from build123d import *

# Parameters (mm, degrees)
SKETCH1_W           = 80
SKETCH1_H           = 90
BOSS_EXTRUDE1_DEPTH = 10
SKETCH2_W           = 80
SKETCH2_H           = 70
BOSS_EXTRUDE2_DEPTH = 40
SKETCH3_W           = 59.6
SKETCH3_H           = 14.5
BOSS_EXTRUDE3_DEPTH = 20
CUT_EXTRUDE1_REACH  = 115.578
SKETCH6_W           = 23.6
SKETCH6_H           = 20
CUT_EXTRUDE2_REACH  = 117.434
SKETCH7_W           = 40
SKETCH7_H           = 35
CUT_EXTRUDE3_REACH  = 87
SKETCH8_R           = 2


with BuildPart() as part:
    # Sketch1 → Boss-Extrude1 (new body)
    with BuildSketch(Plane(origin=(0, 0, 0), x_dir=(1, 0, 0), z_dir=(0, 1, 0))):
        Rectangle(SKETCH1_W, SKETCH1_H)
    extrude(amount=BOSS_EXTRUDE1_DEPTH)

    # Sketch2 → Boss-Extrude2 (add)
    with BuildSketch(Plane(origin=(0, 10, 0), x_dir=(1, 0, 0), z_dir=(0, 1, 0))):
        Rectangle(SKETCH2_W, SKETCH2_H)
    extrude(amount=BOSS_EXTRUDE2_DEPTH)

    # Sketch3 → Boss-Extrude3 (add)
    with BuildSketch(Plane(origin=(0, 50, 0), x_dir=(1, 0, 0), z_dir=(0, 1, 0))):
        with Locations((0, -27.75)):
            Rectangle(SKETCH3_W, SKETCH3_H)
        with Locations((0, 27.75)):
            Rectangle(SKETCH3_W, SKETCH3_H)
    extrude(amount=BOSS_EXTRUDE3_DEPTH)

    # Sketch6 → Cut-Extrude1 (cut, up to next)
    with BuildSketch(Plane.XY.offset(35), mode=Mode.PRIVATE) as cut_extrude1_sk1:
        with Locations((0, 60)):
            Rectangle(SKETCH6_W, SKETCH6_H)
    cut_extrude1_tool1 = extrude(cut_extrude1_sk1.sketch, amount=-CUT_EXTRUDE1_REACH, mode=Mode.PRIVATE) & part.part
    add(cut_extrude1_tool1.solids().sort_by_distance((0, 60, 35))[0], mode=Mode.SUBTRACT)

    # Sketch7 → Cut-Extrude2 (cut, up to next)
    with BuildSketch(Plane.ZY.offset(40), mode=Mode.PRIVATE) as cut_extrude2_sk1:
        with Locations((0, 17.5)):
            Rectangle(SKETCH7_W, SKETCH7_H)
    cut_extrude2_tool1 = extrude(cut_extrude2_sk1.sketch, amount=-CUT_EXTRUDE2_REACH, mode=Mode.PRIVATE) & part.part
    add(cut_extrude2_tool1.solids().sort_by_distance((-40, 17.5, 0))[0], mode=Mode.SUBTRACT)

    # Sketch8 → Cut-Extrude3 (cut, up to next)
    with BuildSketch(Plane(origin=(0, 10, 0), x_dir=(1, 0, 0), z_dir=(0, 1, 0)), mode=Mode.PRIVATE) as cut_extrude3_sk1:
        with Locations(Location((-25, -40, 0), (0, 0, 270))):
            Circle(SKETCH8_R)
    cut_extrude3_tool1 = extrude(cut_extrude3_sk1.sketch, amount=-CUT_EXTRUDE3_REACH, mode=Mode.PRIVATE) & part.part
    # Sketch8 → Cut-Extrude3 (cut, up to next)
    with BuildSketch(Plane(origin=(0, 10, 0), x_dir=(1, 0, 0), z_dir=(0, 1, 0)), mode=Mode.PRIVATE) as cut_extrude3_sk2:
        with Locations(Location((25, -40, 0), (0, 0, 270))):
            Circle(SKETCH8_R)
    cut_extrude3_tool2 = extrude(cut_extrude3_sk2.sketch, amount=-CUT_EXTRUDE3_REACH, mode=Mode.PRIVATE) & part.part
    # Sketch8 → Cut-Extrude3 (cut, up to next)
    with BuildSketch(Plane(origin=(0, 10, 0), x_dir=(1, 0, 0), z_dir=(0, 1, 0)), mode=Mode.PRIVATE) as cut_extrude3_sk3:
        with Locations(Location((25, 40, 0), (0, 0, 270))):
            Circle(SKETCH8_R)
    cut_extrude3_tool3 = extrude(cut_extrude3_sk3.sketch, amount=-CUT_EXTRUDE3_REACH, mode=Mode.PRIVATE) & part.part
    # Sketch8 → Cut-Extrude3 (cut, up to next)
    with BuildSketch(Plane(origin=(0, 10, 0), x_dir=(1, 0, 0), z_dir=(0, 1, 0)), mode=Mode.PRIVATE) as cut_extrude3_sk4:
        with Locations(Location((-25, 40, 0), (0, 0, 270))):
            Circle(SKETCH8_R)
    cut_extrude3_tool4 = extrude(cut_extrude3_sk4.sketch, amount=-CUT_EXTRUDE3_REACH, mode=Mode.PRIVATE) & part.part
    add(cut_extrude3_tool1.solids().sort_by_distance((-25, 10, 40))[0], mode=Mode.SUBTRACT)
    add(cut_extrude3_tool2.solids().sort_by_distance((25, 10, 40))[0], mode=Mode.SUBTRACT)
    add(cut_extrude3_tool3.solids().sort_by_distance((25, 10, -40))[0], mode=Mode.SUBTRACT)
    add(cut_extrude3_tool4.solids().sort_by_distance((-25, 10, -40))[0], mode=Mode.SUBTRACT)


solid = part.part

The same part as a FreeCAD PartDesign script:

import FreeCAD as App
import Part
import Sketcher
from FreeCAD import Vector

doc = App.newDocument("Part")
body = doc.addObject("PartDesign::Body", "Body")

# Sketch on XZ plane
sketch1 = body.newObject("Sketcher::SketchObject", "Sketch")
sketch1.AttachmentSupport = (doc.getObject("XZ_Plane"), [""])
sketch1.MapMode = "FlatFace"
sketch1.addGeometry([
    Part.LineSegment(Vector(-40, -45, 0), Vector(-40, 45, 0)),
    Part.LineSegment(Vector(-40, 45, 0), Vector(40, 45, 0)),
    Part.LineSegment(Vector(40, 45, 0), Vector(40, -45, 0)),
    Part.LineSegment(Vector(40, -45, 0), Vector(-40, -45, 0)),
], False)
sketch1.addConstraint([
    Sketcher.Constraint("Coincident", 0, 2, 1, 1),
    Sketcher.Constraint("Coincident", 1, 2, 2, 1),
    Sketcher.Constraint("Coincident", 2, 2, 3, 1),
    Sketcher.Constraint("Coincident", 3, 2, 0, 1),
    Sketcher.Constraint("Vertical", 0),
    Sketcher.Constraint("Horizontal", 1),
    Sketcher.Constraint("Vertical", 2),
    Sketcher.Constraint("Horizontal", 3),
    Sketcher.Constraint("Symmetric", 0, 2, 2, 2, -1, 1),
    Sketcher.Constraint("DistanceX", 1, 1, 1, 2, 80.0),
    Sketcher.Constraint("DistanceY", 0, 1, 0, 2, 90.0),
])
pad1 = body.newObject("PartDesign::Pad", "Pad")
pad1.Profile = sketch1
pad1.Length = 10
pad1.Reversed = True

# Sketch on XZ plane
sketch2 = body.newObject("Sketcher::SketchObject", "Sketch001")
sketch2.AttachmentSupport = (doc.getObject("XZ_Plane"), [""])
sketch2.MapMode = "FlatFace"
sketch2.AttachmentOffset = App.Placement(Vector(0, 0, -10), App.Rotation())
sketch2.addGeometry([
    Part.LineSegment(Vector(-40, -35, 0), Vector(-40, 35, 0)),
    Part.LineSegment(Vector(-40, 35, 0), Vector(40, 35, 0)),
    Part.LineSegment(Vector(40, 35, 0), Vector(40, -35, 0)),
    Part.LineSegment(Vector(40, -35, 0), Vector(-40, -35, 0)),
], False)
sketch2.addConstraint([
    Sketcher.Constraint("Coincident", 0, 2, 1, 1),
    Sketcher.Constraint("Coincident", 1, 2, 2, 1),
    Sketcher.Constraint("Coincident", 2, 2, 3, 1),
    Sketcher.Constraint("Coincident", 3, 2, 0, 1),
    Sketcher.Constraint("Vertical", 0),
    Sketcher.Constraint("Horizontal", 1),
    Sketcher.Constraint("Vertical", 2),
    Sketcher.Constraint("Horizontal", 3),
    Sketcher.Constraint("Symmetric", 0, 2, 2, 2, -1, 1),
    Sketcher.Constraint("DistanceX", 1, 1, 1, 2, 80.0),
    Sketcher.Constraint("DistanceY", 0, 1, 0, 2, 70.0),
])
pad2 = body.newObject("PartDesign::Pad", "Pad001")
pad2.Profile = sketch2
pad2.Length = 40
pad2.Reversed = True

# Sketch on XZ plane
sketch3 = body.newObject("Sketcher::SketchObject", "Sketch002")
sketch3.AttachmentSupport = (doc.getObject("XZ_Plane"), [""])
sketch3.MapMode = "FlatFace"
sketch3.AttachmentOffset = App.Placement(Vector(0, 0, -50), App.Rotation())
sketch3.addGeometry([
    Part.LineSegment(Vector(-30, 20, 0), Vector(-30, 35, 0)),  # 0
    Part.LineSegment(Vector(-30, 35, 0), Vector(30, 35, 0)),  # 1
    Part.LineSegment(Vector(30, 35, 0), Vector(30, 20, 0)),  # 2
    Part.LineSegment(Vector(30, 20, 0), Vector(-30, 20, 0)),  # 3
    Part.LineSegment(Vector(-30, -35, 0), Vector(-30, -20, 0)),  # 4
    Part.LineSegment(Vector(-30, -20, 0), Vector(30, -20, 0)),  # 5
    Part.LineSegment(Vector(30, -20, 0), Vector(30, -35, 0)),  # 6
    Part.LineSegment(Vector(30, -35, 0), Vector(-30, -35, 0)),  # 7
], False)
sketch3.addConstraint([
    Sketcher.Constraint("Coincident", 0, 2, 1, 1),
    Sketcher.Constraint("Coincident", 1, 2, 2, 1),
    Sketcher.Constraint("Coincident", 2, 2, 3, 1),
    Sketcher.Constraint("Coincident", 3, 2, 0, 1),
    Sketcher.Constraint("Coincident", 4, 2, 5, 1),
    Sketcher.Constraint("Coincident", 5, 2, 6, 1),
    Sketcher.Constraint("Coincident", 6, 2, 7, 1),
    Sketcher.Constraint("Coincident", 7, 2, 4, 1),
    Sketcher.Constraint("Vertical", 0),
    Sketcher.Constraint("Horizontal", 1),
    Sketcher.Constraint("Vertical", 2),
    Sketcher.Constraint("Horizontal", 3),
    Sketcher.Constraint("Vertical", 4),
    Sketcher.Constraint("Horizontal", 5),
    Sketcher.Constraint("Vertical", 6),
    Sketcher.Constraint("Horizontal", 7),
    Sketcher.Constraint("Symmetric", 2, 2, 4, 2, -1, 1),
    Sketcher.Constraint("Symmetric", 0, 2, 6, 2, -1, 1),
    Sketcher.Constraint("Vertical", 3, 2, 4, 2),
    Sketcher.Constraint("DistanceX", 1, 1, 1, 2, 59.6),
    Sketcher.Constraint("DistanceY", 0, 1, 0, 2, 14.5),
    Sketcher.Constraint("DistanceY", -1, 1, 0, 2, 35.0),
])
pad3 = body.newObject("PartDesign::Pad", "Pad002")
pad3.Profile = sketch3
pad3.Length = 20
pad3.Reversed = True

# Sketch on XY plane
sketch4 = body.newObject("Sketcher::SketchObject", "Sketch003")
sketch4.AttachmentSupport = (doc.getObject("XY_Plane"), [""])
sketch4.MapMode = "FlatFace"
sketch4.AttachmentOffset = App.Placement(Vector(0, 0, 35), App.Rotation())
sketch4.addGeometry([
    Part.LineSegment(Vector(-12, 70, 0), Vector(-12, 50, 0)),
    Part.LineSegment(Vector(-12, 50, 0), Vector(12, 50, 0)),
    Part.LineSegment(Vector(12, 50, 0), Vector(12, 70, 0)),
    Part.LineSegment(Vector(12, 70, 0), Vector(-12, 70, 0)),
], False)
sketch4.addConstraint([
    Sketcher.Constraint("Coincident", 0, 2, 1, 1),
    Sketcher.Constraint("Coincident", 1, 2, 2, 1),
    Sketcher.Constraint("Coincident", 2, 2, 3, 1),
    Sketcher.Constraint("Coincident", 3, 2, 0, 1),
    Sketcher.Constraint("Vertical", 0),
    Sketcher.Constraint("Horizontal", 1),
    Sketcher.Constraint("Vertical", 2),
    Sketcher.Constraint("Horizontal", 3),
    Sketcher.Constraint("DistanceY", 0, 2, 0, 1, 20.0),
    Sketcher.Constraint("DistanceX", 1, 1, 1, 2, 23.6),
    Sketcher.Constraint("DistanceY", -1, 1, 0, 2, 50.0),
    Sketcher.Constraint("DistanceX", 0, 2, -1, 1, 11.8),
])
pocket1 = body.newObject("PartDesign::Pocket", "Pocket")
pocket1.Profile = sketch4
pocket1.Type = "UpToFirst"

# Sketch on YZ plane
sketch5 = body.newObject("Sketcher::SketchObject", "Sketch004")
sketch5.AttachmentSupport = (doc.getObject("YZ_Plane"), [""])
sketch5.MapMode = "FlatFace"
sketch5.AttachmentOffset = App.Placement(Vector(0, 0, -40), App.Rotation())
sketch5.addGeometry([
    Part.LineSegment(Vector(35, -20, 0), Vector(0, -20, 0)),
    Part.LineSegment(Vector(0, -20, 0), Vector(0, 20, 0)),
    Part.LineSegment(Vector(0, 20, 0), Vector(35, 20, 0)),
    Part.LineSegment(Vector(35, 20, 0), Vector(35, -20, 0)),
], False)
sketch5.addConstraint([
    Sketcher.Constraint("Coincident", 0, 2, 1, 1),
    Sketcher.Constraint("Coincident", 1, 2, 2, 1),
    Sketcher.Constraint("Coincident", 2, 2, 3, 1),
    Sketcher.Constraint("Coincident", 3, 2, 0, 1),
    Sketcher.Constraint("Horizontal", 0),
    Sketcher.Constraint("Vertical", 1),
    Sketcher.Constraint("Horizontal", 2),
    Sketcher.Constraint("Vertical", 3),
    Sketcher.Constraint("Symmetric", 0, 2, 1, 2, -1, 1),
    Sketcher.Constraint("DistanceX", 0, 2, 0, 1, 35.0),
    Sketcher.Constraint("DistanceY", 1, 1, 1, 2, 40.0),
])
pocket2 = body.newObject("PartDesign::Pocket", "Pocket001")
pocket2.Profile = sketch5
pocket2.Type = "UpToFirst"
pocket2.Reversed = True

# Sketch on XZ plane
sketch6 = body.newObject("Sketcher::SketchObject", "Sketch005")
sketch6.AttachmentSupport = (doc.getObject("XZ_Plane"), [""])
sketch6.MapMode = "FlatFace"
sketch6.AttachmentOffset = App.Placement(Vector(0, 0, -10), App.Rotation())
sketch6.addGeometry(Part.Circle(Vector(-25, 40, 0), Vector(0, 0, 1), 2), False)
sketch6.addConstraint([
    Sketcher.Constraint("Diameter", 0, 4.0),
    Sketcher.Constraint("DistanceX", 0, 3, -1, 1, 25.0),
    Sketcher.Constraint("DistanceY", -1, 1, 0, 3, 40.0),
])
pocket3 = body.newObject("PartDesign::Pocket", "Pocket002")
pocket3.Profile = sketch6
pocket3.Type = "UpToFirst"
pocket3.Reversed = True

# Sketch on XZ plane
sketch7 = body.newObject("Sketcher::SketchObject", "Sketch006")
sketch7.AttachmentSupport = (doc.getObject("XZ_Plane"), [""])
sketch7.MapMode = "FlatFace"
sketch7.AttachmentOffset = App.Placement(Vector(0, 0, -10), App.Rotation())
sketch7.addGeometry(Part.Circle(Vector(25, 40, 0), Vector(0, 0, 1), 2), False)
sketch7.addConstraint([
    Sketcher.Constraint("Diameter", 0, 4.0),
    Sketcher.Constraint("DistanceX", -1, 1, 0, 3, 25.0),
    Sketcher.Constraint("DistanceY", -1, 1, 0, 3, 40.0),
])
pocket4 = body.newObject("PartDesign::Pocket", "Pocket003")
pocket4.Profile = sketch7
pocket4.Type = "UpToFirst"
pocket4.Reversed = True

# Sketch on XZ plane
sketch8 = body.newObject("Sketcher::SketchObject", "Sketch007")
sketch8.AttachmentSupport = (doc.getObject("XZ_Plane"), [""])
sketch8.MapMode = "FlatFace"
sketch8.AttachmentOffset = App.Placement(Vector(0, 0, -10), App.Rotation())
sketch8.addGeometry(Part.Circle(Vector(25, -40, 0), Vector(0, 0, 1), 2), False)
sketch8.addConstraint([
    Sketcher.Constraint("Diameter", 0, 4.0),
    Sketcher.Constraint("DistanceX", -1, 1, 0, 3, 25.0),
    Sketcher.Constraint("DistanceY", 0, 3, -1, 1, 40.0),
])
pocket5 = body.newObject("PartDesign::Pocket", "Pocket004")
pocket5.Profile = sketch8
pocket5.Type = "UpToFirst"
pocket5.Reversed = True

# Sketch on XZ plane
sketch9 = body.newObject("Sketcher::SketchObject", "Sketch008")
sketch9.AttachmentSupport = (doc.getObject("XZ_Plane"), [""])
sketch9.MapMode = "FlatFace"
sketch9.AttachmentOffset = App.Placement(Vector(0, 0, -10), App.Rotation())
sketch9.addGeometry(Part.Circle(Vector(-25, -40, 0), Vector(0, 0, 1), 2), False)
sketch9.addConstraint([
    Sketcher.Constraint("Diameter", 0, 4.0),
    Sketcher.Constraint("DistanceX", 0, 3, -1, 1, 25.0),
    Sketcher.Constraint("DistanceY", 0, 3, -1, 1, 40.0),
])
pocket6 = body.newObject("PartDesign::Pocket", "Pocket005")
pocket6.Profile = sketch9
pocket6.Type = "UpToFirst"
pocket6.Reversed = True

doc.recompute()
